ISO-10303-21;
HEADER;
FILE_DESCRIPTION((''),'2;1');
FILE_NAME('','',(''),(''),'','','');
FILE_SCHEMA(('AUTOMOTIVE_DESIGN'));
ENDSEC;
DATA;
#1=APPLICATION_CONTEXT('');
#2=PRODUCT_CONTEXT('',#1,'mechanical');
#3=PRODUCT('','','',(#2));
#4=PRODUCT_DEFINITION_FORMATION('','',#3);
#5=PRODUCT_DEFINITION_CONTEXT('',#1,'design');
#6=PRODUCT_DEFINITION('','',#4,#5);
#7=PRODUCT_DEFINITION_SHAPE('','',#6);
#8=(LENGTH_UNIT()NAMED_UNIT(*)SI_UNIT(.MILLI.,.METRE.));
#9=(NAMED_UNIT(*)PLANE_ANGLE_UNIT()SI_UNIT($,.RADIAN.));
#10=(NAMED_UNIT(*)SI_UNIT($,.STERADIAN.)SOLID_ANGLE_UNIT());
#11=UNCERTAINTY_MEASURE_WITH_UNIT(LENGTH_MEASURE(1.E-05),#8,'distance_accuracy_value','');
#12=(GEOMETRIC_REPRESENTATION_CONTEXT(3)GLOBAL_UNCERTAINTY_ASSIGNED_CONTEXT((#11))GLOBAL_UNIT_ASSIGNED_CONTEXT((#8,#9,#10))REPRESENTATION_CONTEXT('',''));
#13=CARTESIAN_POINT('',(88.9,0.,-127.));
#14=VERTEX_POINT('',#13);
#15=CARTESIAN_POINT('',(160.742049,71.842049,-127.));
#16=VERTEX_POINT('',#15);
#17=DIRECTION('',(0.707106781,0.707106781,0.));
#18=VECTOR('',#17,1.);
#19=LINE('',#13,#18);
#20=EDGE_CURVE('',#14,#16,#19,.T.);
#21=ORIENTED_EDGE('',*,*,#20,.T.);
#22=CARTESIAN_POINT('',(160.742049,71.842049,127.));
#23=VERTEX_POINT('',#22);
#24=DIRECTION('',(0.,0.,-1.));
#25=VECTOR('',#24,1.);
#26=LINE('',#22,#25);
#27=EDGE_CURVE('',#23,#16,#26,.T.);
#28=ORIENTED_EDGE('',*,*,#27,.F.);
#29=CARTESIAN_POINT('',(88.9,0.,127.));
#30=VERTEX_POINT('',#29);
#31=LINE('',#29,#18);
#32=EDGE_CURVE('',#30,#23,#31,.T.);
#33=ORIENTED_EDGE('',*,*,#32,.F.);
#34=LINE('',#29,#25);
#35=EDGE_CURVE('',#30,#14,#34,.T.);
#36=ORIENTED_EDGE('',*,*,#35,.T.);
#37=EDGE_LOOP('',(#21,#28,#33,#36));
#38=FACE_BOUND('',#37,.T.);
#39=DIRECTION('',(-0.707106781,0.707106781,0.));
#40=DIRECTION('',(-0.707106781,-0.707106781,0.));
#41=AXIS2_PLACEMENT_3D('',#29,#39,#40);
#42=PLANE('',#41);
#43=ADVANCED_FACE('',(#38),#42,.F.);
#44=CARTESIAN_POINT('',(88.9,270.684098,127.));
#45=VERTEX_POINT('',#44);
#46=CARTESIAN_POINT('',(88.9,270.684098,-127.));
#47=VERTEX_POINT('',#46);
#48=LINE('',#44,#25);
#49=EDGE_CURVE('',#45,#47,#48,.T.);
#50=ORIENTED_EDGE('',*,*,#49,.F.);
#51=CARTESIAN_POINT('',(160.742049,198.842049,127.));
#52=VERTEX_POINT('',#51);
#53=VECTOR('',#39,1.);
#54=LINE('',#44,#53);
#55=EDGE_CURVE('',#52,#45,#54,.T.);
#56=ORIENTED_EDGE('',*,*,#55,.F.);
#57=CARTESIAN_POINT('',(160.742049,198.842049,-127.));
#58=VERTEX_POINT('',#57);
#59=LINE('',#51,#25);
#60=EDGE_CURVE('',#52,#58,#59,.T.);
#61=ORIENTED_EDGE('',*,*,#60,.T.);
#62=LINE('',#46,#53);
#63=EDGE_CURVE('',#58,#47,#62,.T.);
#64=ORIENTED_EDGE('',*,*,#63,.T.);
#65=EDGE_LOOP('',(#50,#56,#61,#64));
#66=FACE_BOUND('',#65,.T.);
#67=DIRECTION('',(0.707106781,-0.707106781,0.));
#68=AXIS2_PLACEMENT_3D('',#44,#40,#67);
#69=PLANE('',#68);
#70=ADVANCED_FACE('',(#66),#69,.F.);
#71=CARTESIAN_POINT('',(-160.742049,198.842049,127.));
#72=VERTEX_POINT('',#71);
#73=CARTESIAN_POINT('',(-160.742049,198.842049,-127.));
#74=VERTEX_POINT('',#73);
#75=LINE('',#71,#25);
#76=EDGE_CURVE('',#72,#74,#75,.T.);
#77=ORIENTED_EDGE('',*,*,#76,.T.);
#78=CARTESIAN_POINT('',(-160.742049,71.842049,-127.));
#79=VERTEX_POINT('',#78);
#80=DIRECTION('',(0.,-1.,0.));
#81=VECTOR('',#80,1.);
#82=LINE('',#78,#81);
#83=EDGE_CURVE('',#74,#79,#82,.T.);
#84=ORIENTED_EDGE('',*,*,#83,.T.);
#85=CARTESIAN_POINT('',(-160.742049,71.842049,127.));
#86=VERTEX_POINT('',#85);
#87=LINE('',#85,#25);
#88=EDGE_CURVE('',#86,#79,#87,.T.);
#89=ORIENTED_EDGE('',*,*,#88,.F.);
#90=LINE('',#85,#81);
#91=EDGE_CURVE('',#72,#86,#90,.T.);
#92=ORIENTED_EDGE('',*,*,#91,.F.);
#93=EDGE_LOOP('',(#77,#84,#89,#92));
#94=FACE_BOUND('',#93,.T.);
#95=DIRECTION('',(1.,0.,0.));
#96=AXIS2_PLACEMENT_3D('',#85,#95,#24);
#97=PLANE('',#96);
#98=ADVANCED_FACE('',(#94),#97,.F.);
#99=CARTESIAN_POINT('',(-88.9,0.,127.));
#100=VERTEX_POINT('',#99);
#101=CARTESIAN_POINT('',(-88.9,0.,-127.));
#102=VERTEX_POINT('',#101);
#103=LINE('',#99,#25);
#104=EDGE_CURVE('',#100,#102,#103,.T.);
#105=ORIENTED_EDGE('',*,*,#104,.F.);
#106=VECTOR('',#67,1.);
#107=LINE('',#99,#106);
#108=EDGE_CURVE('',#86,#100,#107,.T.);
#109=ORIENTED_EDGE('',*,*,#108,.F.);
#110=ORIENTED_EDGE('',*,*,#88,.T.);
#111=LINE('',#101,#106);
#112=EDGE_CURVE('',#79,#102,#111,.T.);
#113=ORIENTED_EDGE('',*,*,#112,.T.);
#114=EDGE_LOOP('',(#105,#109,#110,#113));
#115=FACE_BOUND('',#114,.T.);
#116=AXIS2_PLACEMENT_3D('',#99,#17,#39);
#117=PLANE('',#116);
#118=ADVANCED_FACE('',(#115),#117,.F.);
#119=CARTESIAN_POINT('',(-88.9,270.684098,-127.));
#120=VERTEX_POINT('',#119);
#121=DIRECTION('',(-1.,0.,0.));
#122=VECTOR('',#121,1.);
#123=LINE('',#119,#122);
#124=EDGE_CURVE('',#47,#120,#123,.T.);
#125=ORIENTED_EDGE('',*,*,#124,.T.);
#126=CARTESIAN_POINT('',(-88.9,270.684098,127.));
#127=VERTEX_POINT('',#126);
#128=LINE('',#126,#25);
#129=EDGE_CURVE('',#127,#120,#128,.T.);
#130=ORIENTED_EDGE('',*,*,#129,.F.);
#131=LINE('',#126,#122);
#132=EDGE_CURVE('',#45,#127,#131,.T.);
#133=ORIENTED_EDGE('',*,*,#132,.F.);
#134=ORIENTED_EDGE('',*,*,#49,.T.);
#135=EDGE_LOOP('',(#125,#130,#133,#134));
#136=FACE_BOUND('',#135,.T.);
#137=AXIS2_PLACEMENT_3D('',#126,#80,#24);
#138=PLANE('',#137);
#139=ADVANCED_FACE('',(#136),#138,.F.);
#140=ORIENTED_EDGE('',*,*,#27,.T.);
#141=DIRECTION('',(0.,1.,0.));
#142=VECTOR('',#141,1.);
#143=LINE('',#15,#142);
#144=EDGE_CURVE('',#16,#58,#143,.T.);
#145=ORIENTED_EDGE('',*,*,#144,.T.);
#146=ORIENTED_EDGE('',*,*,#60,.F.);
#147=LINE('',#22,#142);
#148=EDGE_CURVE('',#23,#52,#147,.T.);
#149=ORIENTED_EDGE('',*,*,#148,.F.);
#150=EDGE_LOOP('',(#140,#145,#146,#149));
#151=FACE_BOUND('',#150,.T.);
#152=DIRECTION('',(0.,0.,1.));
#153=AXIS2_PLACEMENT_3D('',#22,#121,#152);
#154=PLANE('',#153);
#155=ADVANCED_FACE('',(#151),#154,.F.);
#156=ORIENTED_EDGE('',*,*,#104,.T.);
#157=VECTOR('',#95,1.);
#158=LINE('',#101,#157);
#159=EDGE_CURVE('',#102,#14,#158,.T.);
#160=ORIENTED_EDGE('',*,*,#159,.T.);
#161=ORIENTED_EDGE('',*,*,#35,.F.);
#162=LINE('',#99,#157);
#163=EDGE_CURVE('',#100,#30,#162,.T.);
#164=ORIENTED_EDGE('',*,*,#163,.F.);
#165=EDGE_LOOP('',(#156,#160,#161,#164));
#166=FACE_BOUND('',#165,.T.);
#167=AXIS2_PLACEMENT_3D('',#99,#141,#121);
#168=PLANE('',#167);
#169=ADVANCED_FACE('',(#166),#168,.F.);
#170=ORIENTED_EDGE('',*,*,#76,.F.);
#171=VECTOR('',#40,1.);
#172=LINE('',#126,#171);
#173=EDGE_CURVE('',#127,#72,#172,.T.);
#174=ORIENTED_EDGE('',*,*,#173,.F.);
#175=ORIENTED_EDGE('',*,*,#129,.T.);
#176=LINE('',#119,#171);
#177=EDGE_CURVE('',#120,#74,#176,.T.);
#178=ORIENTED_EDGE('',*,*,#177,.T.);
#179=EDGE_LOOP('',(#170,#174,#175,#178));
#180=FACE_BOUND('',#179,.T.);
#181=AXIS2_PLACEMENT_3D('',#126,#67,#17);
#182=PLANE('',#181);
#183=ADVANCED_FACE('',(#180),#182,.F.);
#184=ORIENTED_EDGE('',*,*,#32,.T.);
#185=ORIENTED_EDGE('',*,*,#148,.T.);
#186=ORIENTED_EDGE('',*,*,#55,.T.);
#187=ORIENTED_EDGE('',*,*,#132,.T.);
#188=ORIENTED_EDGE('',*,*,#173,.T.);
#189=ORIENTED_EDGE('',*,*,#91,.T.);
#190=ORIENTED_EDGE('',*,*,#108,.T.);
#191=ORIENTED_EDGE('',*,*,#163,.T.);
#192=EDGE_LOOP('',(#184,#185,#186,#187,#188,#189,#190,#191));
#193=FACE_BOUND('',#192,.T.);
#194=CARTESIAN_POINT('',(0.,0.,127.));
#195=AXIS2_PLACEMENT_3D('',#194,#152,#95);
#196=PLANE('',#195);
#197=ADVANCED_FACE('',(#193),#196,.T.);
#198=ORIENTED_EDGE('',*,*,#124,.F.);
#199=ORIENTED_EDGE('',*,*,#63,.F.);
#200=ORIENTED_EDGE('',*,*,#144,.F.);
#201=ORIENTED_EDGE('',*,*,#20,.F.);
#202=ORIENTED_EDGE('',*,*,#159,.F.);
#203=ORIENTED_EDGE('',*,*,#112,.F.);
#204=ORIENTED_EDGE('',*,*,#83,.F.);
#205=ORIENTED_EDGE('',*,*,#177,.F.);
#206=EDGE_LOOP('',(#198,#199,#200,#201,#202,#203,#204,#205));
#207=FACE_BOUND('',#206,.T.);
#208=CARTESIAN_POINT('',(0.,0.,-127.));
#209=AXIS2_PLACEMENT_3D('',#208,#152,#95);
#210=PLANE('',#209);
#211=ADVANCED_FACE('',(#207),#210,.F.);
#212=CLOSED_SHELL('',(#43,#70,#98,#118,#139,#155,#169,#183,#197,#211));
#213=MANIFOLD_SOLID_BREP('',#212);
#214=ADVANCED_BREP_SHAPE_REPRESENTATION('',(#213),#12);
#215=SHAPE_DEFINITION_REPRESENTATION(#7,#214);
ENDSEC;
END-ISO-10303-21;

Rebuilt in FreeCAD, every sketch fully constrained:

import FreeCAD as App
import Part
import Sketcher
Q = App.Units.Quantity


def add_polygon(sketch, points):
    """Adds a closed chain of lines whose ends are joined by coincident constraints."""
    first, n = sketch.GeometryCount, len(points)
    for a, b in zip(points, points[1:] + points[:1]):
        sketch.addGeometry(Part.LineSegment(App.Vector(*a, 0), App.Vector(*b, 0)), False)
    for i in range(n):
        sketch.addConstraint(Sketcher.Constraint("Coincident", first + i, 2, first + (i + 1) % n, 1))

doc = App.newDocument("Part")
body = doc.addObject("PartDesign::Body", "Body")

sketch1 = body.newObject("Sketcher::SketchObject", "Sketch")
sketch1.AttachmentSupport = (doc.getObject("XY_Plane"), [""])
sketch1.MapMode = "FlatFace"
add_polygon(sketch1, [(-88.9, 0), (88.9, 0), (160.742049, 71.842049), (160.742049, 198.842049), (88.9, 270.684098), (-88.9, 270.684098), (-160.742049, 198.842049), (-160.742049, 71.842049)])
sketch1.addConstraint([
    Sketcher.Constraint("Horizontal", 0),
    Sketcher.Constraint("Vertical", 2),
    Sketcher.Constraint("Horizontal", 4),
    Sketcher.Constraint("Vertical", 6),
    Sketcher.Constraint("Symmetric", 0, 2, 7, 2, -1, 1),
    Sketcher.Constraint("Symmetric", 2, 2, 5, 2, -2),
    Sketcher.Constraint("Perpendicular", 1, 3),
    Sketcher.Constraint("Perpendicular", 3, 5),
    Sketcher.Constraint("Perpendicular", 5, 7),
    Sketcher.Constraint("Horizontal", 1, 2, 6, 2),
    Sketcher.Constraint("Vertical", 0, 2, 3, 2),
    Sketcher.Constraint("DistanceX", 0, 1, 0, 2, Q("7 in")),
    Sketcher.Constraint("DistanceY", 2, 1, 2, 2, Q("5 in")),
    Sketcher.Constraint("Distance", 1, Q("4 in")),
])
pad1 = body.newObject("PartDesign::Pad", "Pad")
pad1.Profile = sketch1
pad1.Length = Q("10 in")
pad1.Midplane = True

doc.recompute()
